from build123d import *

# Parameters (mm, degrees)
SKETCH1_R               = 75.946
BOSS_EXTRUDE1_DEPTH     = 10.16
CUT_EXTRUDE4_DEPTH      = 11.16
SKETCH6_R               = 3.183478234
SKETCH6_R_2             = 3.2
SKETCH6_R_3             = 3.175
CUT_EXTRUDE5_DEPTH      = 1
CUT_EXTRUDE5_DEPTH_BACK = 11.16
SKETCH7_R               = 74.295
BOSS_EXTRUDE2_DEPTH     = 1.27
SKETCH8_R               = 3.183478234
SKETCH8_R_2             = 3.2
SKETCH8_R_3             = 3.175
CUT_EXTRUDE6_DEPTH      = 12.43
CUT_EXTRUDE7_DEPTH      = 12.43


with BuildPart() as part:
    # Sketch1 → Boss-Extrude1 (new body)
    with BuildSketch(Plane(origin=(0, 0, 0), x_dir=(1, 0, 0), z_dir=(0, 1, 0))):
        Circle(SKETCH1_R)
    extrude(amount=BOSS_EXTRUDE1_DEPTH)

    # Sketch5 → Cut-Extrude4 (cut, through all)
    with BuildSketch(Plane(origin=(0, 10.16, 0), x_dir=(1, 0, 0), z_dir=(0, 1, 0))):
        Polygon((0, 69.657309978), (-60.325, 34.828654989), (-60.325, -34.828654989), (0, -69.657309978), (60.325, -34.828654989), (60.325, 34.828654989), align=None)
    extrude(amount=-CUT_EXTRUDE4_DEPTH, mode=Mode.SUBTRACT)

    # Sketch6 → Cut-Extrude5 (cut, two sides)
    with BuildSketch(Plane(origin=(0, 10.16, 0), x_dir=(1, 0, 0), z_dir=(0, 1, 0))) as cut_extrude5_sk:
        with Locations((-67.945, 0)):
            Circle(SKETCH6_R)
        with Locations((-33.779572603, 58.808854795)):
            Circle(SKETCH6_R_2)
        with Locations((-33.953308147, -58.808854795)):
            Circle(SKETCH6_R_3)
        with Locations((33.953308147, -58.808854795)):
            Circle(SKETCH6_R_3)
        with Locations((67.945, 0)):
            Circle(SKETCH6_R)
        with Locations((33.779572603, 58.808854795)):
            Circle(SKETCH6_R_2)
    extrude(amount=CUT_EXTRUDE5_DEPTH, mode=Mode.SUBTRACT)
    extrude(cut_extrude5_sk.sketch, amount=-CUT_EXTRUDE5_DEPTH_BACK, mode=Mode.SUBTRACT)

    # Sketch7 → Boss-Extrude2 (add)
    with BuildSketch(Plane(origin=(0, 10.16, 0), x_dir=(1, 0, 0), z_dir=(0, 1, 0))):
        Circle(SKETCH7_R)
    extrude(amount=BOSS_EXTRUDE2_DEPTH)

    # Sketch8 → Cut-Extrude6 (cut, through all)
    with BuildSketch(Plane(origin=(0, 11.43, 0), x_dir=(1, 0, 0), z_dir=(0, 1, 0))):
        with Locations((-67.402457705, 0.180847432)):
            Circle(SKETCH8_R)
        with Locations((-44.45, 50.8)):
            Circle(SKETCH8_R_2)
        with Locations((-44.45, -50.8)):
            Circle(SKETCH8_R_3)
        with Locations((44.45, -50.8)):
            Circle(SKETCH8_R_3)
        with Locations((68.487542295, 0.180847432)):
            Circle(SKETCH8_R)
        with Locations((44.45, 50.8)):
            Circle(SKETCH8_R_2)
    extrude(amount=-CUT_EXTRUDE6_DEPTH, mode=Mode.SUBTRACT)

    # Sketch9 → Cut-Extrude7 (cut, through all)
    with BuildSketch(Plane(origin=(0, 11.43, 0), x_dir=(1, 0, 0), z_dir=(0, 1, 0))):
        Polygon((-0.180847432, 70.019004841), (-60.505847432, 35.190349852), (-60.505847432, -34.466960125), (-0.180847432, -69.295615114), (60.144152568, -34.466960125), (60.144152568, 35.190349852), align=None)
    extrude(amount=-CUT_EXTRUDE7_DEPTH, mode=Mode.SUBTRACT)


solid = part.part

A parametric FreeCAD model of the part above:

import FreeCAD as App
import Part
import Sketcher
Q = App.Units.Quantity


def add_polygon(sketch, points):
    """Adds a closed chain of lines whose ends are joined by coincident constraints."""
    first, n = sketch.GeometryCount, len(points)
    for a, b in zip(points, points[1:] + points[:1]):
        sketch.addGeometry(Part.LineSegment(App.Vector(*a, 0), App.Vector(*b, 0)), False)
    for i in range(n):
        sketch.addConstraint(Sketcher.Constraint("Coincident", first + i, 2, first + (i + 1) % n, 1))

doc = App.newDocument("Part")
body = doc.addObject("PartDesign::Body", "Body")

# Sketch on XZ plane
sketch1 = body.newObject("Sketcher::SketchObject", "Sketch")
sketch1.AttachmentSupport = (doc.getObject("XZ_Plane"), [""])
sketch1.MapMode = "FlatFace"
sketch1.addGeometry(Part.Circle(App.Vector(0, 0, 0), App.Vector(0, 0, 1), 76), False)
sketch1.addConstraint([
    Sketcher.Constraint("Coincident", 0, 3, -1, 1),
    Sketcher.Constraint("Diameter", 0, Q("5.98 in")),
])
pad1 = body.newObject("PartDesign::Pad", "Pad")
pad1.Profile = sketch1
pad1.Length = Q("0.4 in")
pad1.Reversed = True

# Sketch on XZ plane
sketch2 = body.newObject("Sketcher::SketchObject", "Sketch001")
sketch2.AttachmentSupport = (doc.getObject("XZ_Plane"), [""])
sketch2.MapMode = "FlatFace"
sketch2.AttachmentOffset = App.Placement(App.Vector(0, 0, -0.4 * 25.4), App.Rotation())
add_polygon(sketch2, [(0, -70), (-60, -35), (-60, 35), (0, 70), (60, 35), (60, -35)])  # lines 0-5
sketch2.addConstraint([
    Sketcher.Constraint("Vertical", 1),
    Sketcher.Constraint("Vertical", 4),
    Sketcher.Constraint("Symmetric", 0, 2, 3, 2, -1, 1),
    Sketcher.Constraint("Symmetric", 2, 2, 5, 2, -1, 1),
    Sketcher.Constraint("PointOnObject", 2, 2, -2),
    Sketcher.Constraint("Parallel", 2, 5),
    Sketcher.Constraint("Horizontal", 1, 2, 3, 2),
    Sketcher.Constraint("Angle", 0, Q("150 deg")),
    Sketcher.Constraint("DistanceX", 1, 2, 3, 2, Q("4.75 in")),
    Sketcher.Constraint("DistanceY", 1, 1, 1, 2, 69.65731),
])
pocket1 = body.newObject("PartDesign::Pocket", "Pocket")
pocket1.Profile = sketch2
pocket1.Type = "ThroughAll"
pocket1.Reversed = True

# Sketch on XZ plane
sketch3 = body.newObject("Sketcher::SketchObject", "Sketch002")
sketch3.AttachmentSupport = (doc.getObject("XZ_Plane"), [""])
sketch3.MapMode = "FlatFace"
sketch3.AttachmentOffset = App.Placement(App.Vector(0, 0, -0.4 * 25.4), App.Rotation())
sketch3.addGeometry([
    Part.Circle(App.Vector(-67.9, 0, 0), App.Vector(0, 0, 1), 3.2),  # 0
    Part.Circle(App.Vector(-33.8, -58.8, 0), App.Vector(0, 0, 1), 3.2),  # 1
    Part.Circle(App.Vector(-34, 58.8, 0), App.Vector(0, 0, 1), 3.2),  # 2
    Part.Circle(App.Vector(34, 58.8, 0), App.Vector(0, 0, 1), 3.2),  # 3
    Part.Circle(App.Vector(67.9, 0, 0), App.Vector(0, 0, 1), 3.2),  # 4
    Part.Circle(App.Vector(33.8, -58.8, 0), App.Vector(0, 0, 1), 3.2),  # 5
], False)
sketch3.addConstraint([
    Sketcher.Constraint("Equal", 2, 3),
    Sketcher.Constraint("Equal", 0, 4),
    Sketcher.Constraint("Equal", 1, 5),
    Sketcher.Constraint("Symmetric", 0, 3, 4, 3, -1, 1),
    Sketcher.Constraint("Symmetric", 2, 3, 3, 3, -2),
    Sketcher.Constraint("Symmetric", 1, 3, 5, 3, -2),
    Sketcher.Constraint("PointOnObject", 0, 3, -1),
    Sketcher.Constraint("Diameter", 2, Q("0.25 in")),
    Sketcher.Constraint("Diameter", 1, 6.4),
    Sketcher.Constraint("DistanceX", 0, 3, 4, 3, Q("5.35 in")),
    Sketcher.Constraint("Diameter", 0, 6.366956),
    Sketcher.Constraint("DistanceX", 2, 3, -1, 1, 33.953308),
    Sketcher.Constraint("DistanceY", 1, 3, 2, 3, 117.61771),
    Sketcher.Constraint("DistanceX", 1, 3, 3, 3, 67.732881),
    Sketcher.Constraint("DistanceY", 1, 3, -1, 1, 58.808855),
])
pocket2 = body.newObject("PartDesign::Pocket", "Pocket001")
pocket2.Profile = sketch3
pocket2.Type = "ThroughAll"
pocket2.Midplane = True

# Sketch on XZ plane
sketch4 = body.newObject("Sketcher::SketchObject", "Sketch003")
sketch4.AttachmentSupport = (doc.getObject("XZ_Plane"), [""])
sketch4.MapMode = "FlatFace"
sketch4.AttachmentOffset = App.Placement(App.Vector(0, 0, -0.4 * 25.4), App.Rotation())
sketch4.addGeometry(Part.Circle(App.Vector(0, 0, 0), App.Vector(0, 0, 1), 74), False)
sketch4.addConstraint([
    Sketcher.Constraint("Coincident", 0, 3, -1, 1),
    Sketcher.Constraint("Diameter", 0, Q("5.85 in")),
])
pad2 = body.newObject("PartDesign::Pad", "Pad001")
pad2.Profile = sketch4
pad2.Length = Q("0.05 in")
pad2.Reversed = True

# Sketch on XZ plane
sketch5 = body.newObject("Sketcher::SketchObject", "Sketch004")
sketch5.AttachmentSupport = (doc.getObject("XZ_Plane"), [""])
sketch5.MapMode = "FlatFace"
sketch5.AttachmentOffset = App.Placement(App.Vector(0, 0, -0.45 * 25.4), App.Rotation())
sketch5.addGeometry([
    Part.Circle(App.Vector(-67.4, -0.2, 0), App.Vector(0, 0, 1), 3.2),  # 0
    Part.Circle(App.Vector(-44.5, -50.8, 0), App.Vector(0, 0, 1), 3.2),  # 1
    Part.Circle(App.Vector(-44.5, 50.8, 0), App.Vector(0, 0, 1), 3.2),  # 2
    Part.Circle(App.Vector(44.5, 50.8, 0), App.Vector(0, 0, 1), 3.2),  # 3
    Part.Circle(App.Vector(68.5, -0.2, 0), App.Vector(0, 0, 1), 3.2),  # 4
    Part.Circle(App.Vector(44.5, -50.8, 0), App.Vector(0, 0, 1), 3.2),  # 5
], False)
sketch5.addConstraint([
    Sketcher.Constraint("Equal", 2, 3),
    Sketcher.Constraint("Equal", 0, 4),
    Sketcher.Constraint("Equal", 1, 5),
    Sketcher.Constraint("Symmetric", 1, 3, 3, 3, -1, 1),
    Sketcher.Constraint("Symmetric", 2, 3, 5, 3, -1, 1),
    Sketcher.Constraint("Symmetric", 2, 3, 3, 3, -2),
    Sketcher.Constraint("Horizontal", 0, 3, 4, 3),
    Sketcher.Constraint("Diameter", 2, Q("0.25 in")),
    Sketcher.Constraint("DistanceY", 1, 3, -1, 1, Q("2 in")),
    Sketcher.Constraint("DistanceX", 2, 3, 3, 3, Q("3.5 in")),
    Sketcher.Constraint("Diameter", 1, 6.4),
    Sketcher.Constraint("DistanceX", 0, 3, 4, 3, Q("5.35 in")),
    Sketcher.Constraint("Diameter", 0, 6.366956),
    Sketcher.Constraint("DistanceX", 0, 3, -1, 1, 67.402458),
    Sketcher.Constraint("DistanceY", 0, 3, -1, 1, 0.180847),
])
pocket3 = body.newObject("PartDesign::Pocket", "Pocket002")
pocket3.Profile = sketch5
pocket3.Type = "ThroughAll"
pocket3.Reversed = True

# Sketch on XZ plane
sketch6 = body.newObject("Sketcher::SketchObject", "Sketch005")
sketch6.AttachmentSupport = (doc.getObject("XZ_Plane"), [""])
sketch6.MapMode = "FlatFace"
sketch6.AttachmentOffset = App.Placement(App.Vector(0, 0, -0.45 * 25.4), App.Rotation())
add_polygon(sketch6, [(0, -70), (-61, -35), (-61, 34), (0, 69), (60, 34), (60, -35)])  # lines 0-5
sketch6.addConstraint([
    Sketcher.Constraint("Vertical", 1),
    Sketcher.Constraint("Vertical", 4),
    Sketcher.Constraint("Parallel", 0, 3),
    Sketcher.Constraint("Parallel", 2, 5),
    Sketcher.Constraint("Horizontal", 1, 2, 3, 2),
    Sketcher.Constraint("Horizontal", 0, 2, 4, 2),
    Sketcher.Constraint("Vertical", 2, 2, 5, 2),
    Sketcher.Constraint("Angle", 0, Q("150 deg")),
    Sketcher.Constraint("DistanceX", 1, 2, 3, 2, Q("4.75 in")),
    Sketcher.Constraint("DistanceY", 1, 1, 1, 2, 69.65731),
    Sketcher.Constraint("DistanceY", 0, 2, -1, 1, 35.19035),
    Sketcher.Constraint("DistanceX", 0, 2, -1, 1, 60.505847),
])
pocket4 = body.newObject("PartDesign::Pocket", "Pocket003")
pocket4.Profile = sketch6
pocket4.Type = "ThroughAll"
pocket4.Reversed = True

doc.recompute()
